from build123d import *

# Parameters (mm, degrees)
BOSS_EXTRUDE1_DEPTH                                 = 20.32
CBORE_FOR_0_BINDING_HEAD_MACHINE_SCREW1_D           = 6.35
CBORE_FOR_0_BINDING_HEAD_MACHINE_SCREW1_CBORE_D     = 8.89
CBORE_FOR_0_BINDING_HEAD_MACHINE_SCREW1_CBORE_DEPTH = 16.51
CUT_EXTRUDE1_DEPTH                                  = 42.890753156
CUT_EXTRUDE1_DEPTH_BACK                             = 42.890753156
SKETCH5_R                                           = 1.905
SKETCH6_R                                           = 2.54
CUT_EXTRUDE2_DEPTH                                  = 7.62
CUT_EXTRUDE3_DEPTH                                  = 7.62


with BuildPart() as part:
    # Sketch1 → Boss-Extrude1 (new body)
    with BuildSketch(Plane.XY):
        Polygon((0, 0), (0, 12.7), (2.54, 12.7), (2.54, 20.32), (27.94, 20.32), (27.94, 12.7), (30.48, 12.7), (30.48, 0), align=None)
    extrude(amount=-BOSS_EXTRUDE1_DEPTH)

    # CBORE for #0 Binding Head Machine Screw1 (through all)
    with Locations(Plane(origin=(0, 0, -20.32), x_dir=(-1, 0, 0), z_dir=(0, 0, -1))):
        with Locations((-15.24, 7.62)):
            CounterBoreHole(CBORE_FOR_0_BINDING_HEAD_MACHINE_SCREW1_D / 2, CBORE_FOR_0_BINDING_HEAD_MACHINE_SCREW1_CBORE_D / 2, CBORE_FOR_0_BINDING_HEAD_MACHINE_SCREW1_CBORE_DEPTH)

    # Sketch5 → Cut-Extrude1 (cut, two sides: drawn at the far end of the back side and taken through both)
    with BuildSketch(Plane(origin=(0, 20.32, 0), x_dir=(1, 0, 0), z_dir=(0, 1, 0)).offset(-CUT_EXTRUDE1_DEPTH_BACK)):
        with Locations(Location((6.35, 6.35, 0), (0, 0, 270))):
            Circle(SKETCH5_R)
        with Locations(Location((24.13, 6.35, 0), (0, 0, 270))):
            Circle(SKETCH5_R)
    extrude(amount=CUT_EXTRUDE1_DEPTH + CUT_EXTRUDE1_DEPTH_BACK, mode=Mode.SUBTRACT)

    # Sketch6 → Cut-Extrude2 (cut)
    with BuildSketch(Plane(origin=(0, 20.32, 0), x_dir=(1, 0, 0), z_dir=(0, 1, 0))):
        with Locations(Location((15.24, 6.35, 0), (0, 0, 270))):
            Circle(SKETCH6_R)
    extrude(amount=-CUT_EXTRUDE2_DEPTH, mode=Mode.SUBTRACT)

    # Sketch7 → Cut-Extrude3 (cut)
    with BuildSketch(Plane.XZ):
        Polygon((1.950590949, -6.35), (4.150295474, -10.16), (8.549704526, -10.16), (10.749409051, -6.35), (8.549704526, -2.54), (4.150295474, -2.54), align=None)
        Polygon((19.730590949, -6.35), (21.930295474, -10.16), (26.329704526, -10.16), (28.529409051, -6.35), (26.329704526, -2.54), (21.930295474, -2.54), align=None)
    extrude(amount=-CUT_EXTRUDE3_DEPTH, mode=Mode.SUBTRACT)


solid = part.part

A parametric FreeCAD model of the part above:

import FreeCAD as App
import Part
import Sketcher
from FreeCAD import Vector
Q = App.Units.Quantity

doc = App.newDocument("Part")
body = doc.addObject("PartDesign::Body", "Body")

sketch1 = body.newObject("Sketcher::SketchObject", "Sketch")
sketch1.AttachmentSupport = (doc.getObject("XY_Plane"), [""])
sketch1.MapMode = "FlatFace"
sketch1.addGeometry([
    Part.LineSegment(Vector(0, 12.7, 0), Vector(0, 0, 0)),
    Part.LineSegment(Vector(0, 0, 0), Vector(30.5, 0, 0)),
    Part.LineSegment(Vector(30.5, 0, 0), Vector(30.5, 12.7, 0)),
    Part.LineSegment(Vector(30.5, 12.7, 0), Vector(27.9, 12.7, 0)),
    Part.LineSegment(Vector(27.9, 12.7, 0), Vector(27.9, 20.3, 0)),
    Part.LineSegment(Vector(27.9, 20.3, 0), Vector(2.5, 20.3, 0)),
    Part.LineSegment(Vector(2.5, 20.3, 0), Vector(2.5, 12.7, 0)),
    Part.LineSegment(Vector(2.5, 12.7, 0), Vector(0, 12.7, 0)),
], False)
sketch1.addConstraint([
    Sketcher.Constraint("Coincident", 0, 2, 1, 1),
    Sketcher.Constraint("Coincident", 1, 2, 2, 1),
    Sketcher.Constraint("Coincident", 2, 2, 3, 1),
    Sketcher.Constraint("Coincident", 3, 2, 4, 1),
    Sketcher.Constraint("Coincident", 4, 2, 5, 1),
    Sketcher.Constraint("Coincident", 5, 2, 6, 1),
    Sketcher.Constraint("Coincident", 6, 2, 7, 1),
    Sketcher.Constraint("Coincident", 7, 2, 0, 1),
    Sketcher.Constraint("Vertical", 0),
    Sketcher.Constraint("Horizontal", 1),
    Sketcher.Constraint("Vertical", 2),
    Sketcher.Constraint("Horizontal", 3),
    Sketcher.Constraint("Vertical", 4),
    Sketcher.Constraint("Horizontal", 5),
    Sketcher.Constraint("Vertical", 6),
    Sketcher.Constraint("Horizontal", 7),
    Sketcher.Constraint("Coincident", 0, 2, -1, 1),
    Sketcher.Constraint("Horizontal", 3, 2, 6, 2),
    Sketcher.Constraint("Equal", 3, 7),
    Sketcher.Constraint("DistanceX", 5, 2, 5, 1, Q("1 in")),
    Sketcher.Constraint("DistanceX", 1, 1, 1, 2, Q("1.2 in")),
    Sketcher.Constraint("DistanceY", 0, 2, 0, 1, Q("0.5 in")),
    Sketcher.Constraint("DistanceY", 4, 1, 4, 2, Q("0.3 in")),
])
pad1 = body.newObject("PartDesign::Pad", "Pad")
pad1.Profile = sketch1
pad1.Length = Q("0.8 in")
pad1.Reversed = True

sketch2 = body.newObject("Sketcher::SketchObject", "Sketch001")
sketch2.AttachmentSupport = (doc.getObject("XY_Plane"), [""])
sketch2.MapMode = "FlatFace"
sketch2.AttachmentOffset = App.Placement(Vector(0, 0, -0.8 * 25.4), App.Rotation())
sketch2.addGeometry(Part.Circle(Vector(15.2, 7.6, 0), Vector(0, 0, 1), 3.2), False)
sketch2.addConstraint([
    Sketcher.Constraint("Diameter", 0, Q("0.25 in")),
    Sketcher.Constraint("DistanceX", -1, 1, 0, 3, Q("0.6 in")),
    Sketcher.Constraint("DistanceY", -1, 1, 0, 3, Q("0.3 in")),
])
doc.recompute()
hole = body.newObject("PartDesign::Hole", "Hole")
hole.Profile = sketch2
hole.ThreadType = "None"
hole.Diameter = Q("0.25 in")
hole.DepthType = "ThroughAll"
hole.HoleCutType = "Counterbore"
hole.HoleCutDiameter = Q("0.35 in")
hole.HoleCutDepth = Q("0.65 in")
hole.Reversed = True

sketch3 = body.newObject("Sketcher::SketchObject", "Sketch002")
sketch3.AttachmentSupport = (doc.getObject("XZ_Plane"), [""])
sketch3.MapMode = "FlatFace"
sketch3.AttachmentOffset = App.Placement(Vector(0, 0, -0.8 * 25.4), App.Rotation())
sketch3.addGeometry([
    Part.Circle(Vector(6.3, -6.3, 0), Vector(0, 0, 1), 1.9),
    Part.Circle(Vector(24.1, -6.3, 0), Vector(0, 0, 1), 1.9),
], False)
sketch3.addConstraint([
    Sketcher.Constraint("Equal", 0, 1),
    Sketcher.Constraint("Horizontal", 0, 3, 1, 3),
    Sketcher.Constraint("Diameter", 0, Q("0.15 in")),
    Sketcher.Constraint("DistanceX", 0, 3, 1, 3, Q("0.7 in")),
    Sketcher.Constraint("DistanceX", -1, 1, 0, 3, Q("0.25 in")),
    Sketcher.Constraint("DistanceY", 0, 3, -1, 1, Q("0.25 in")),
])
pocket1 = body.newObject("PartDesign::Pocket", "Pocket")
pocket1.Profile = sketch3
pocket1.Type = "ThroughAll"
pocket1.Midplane = True

sketch4 = body.newObject("Sketcher::SketchObject", "Sketch003")
sketch4.AttachmentSupport = (doc.getObject("XZ_Plane"), [""])
sketch4.MapMode = "FlatFace"
sketch4.AttachmentOffset = App.Placement(Vector(0, 0, -0.8 * 25.4), App.Rotation())
sketch4.addGeometry(Part.Circle(Vector(15.2, -6.3, 0), Vector(0, 0, 1), 2.5), False)
sketch4.addConstraint([
    Sketcher.Constraint("Diameter", 0, Q("0.2 in")),
    Sketcher.Constraint("DistanceX", -1, 1, 0, 3, Q("0.6 in")),
    Sketcher.Constraint("DistanceY", 0, 3, -1, 1, Q("0.25 in")),
])
pocket2 = body.newObject("PartDesign::Pocket", "Pocket001")
pocket2.Profile = sketch4
pocket2.Length = Q("0.3 in")
pocket2.Reversed = True

sketch5 = body.newObject("Sketcher::SketchObject", "Sketch004")
sketch5.AttachmentSupport = (doc.getObject("XZ_Plane"), [""])
sketch5.MapMode = "FlatFace"
sketch5.addGeometry([
    Part.LineSegment(Vector(2, -6.3, 0), Vector(4.2, -10.2, 0)),
    Part.LineSegment(Vector(4.2, -10.2, 0), Vector(8.5, -10.2, 0)),
    Part.LineSegment(Vector(8.5, -10.2, 0), Vector(10.7, -6.3, 0)),
    Part.LineSegment(Vector(10.7, -6.3, 0), Vector(8.5, -2.5, 0)),
    Part.LineSegment(Vector(8.5, -2.5, 0), Vector(4.2, -2.5, 0)),
    Part.LineSegment(Vector(4.2, -2.5, 0), Vector(2, -6.3, 0)),
    Part.LineSegment(Vector(19.7, -6.3, 0), Vector(21.9, -10.2, 0)),
    Part.LineSegment(Vector(21.9, -10.2, 0), Vector(26.3, -10.2, 0)),
    Part.LineSegment(Vector(26.3, -10.2, 0), Vector(28.5, -6.3, 0)),
    Part.LineSegment(Vector(28.5, -6.3, 0), Vector(26.3, -2.5, 0)),
    Part.LineSegment(Vector(26.3, -2.5, 0), Vector(21.9, -2.5, 0)),
    Part.LineSegment(Vector(21.9, -2.5, 0), Vector(19.7, -6.3, 0)),
], False)
sketch5.addConstraint([
    Sketcher.Constraint("Coincident", 0, 2, 1, 1),
    Sketcher.Constraint("Coincident", 1, 2, 2, 1),
    Sketcher.Constraint("Coincident", 2, 2, 3, 1),
    Sketcher.Constraint("Coincident", 3, 2, 4, 1),
    Sketcher.Constraint("Coincident", 4, 2, 5, 1),
    Sketcher.Constraint("Coincident", 5, 2, 0, 1),
    Sketcher.Constraint("Coincident", 6, 2, 7, 1),
    Sketcher.Constraint("Coincident", 7, 2, 8, 1),
    Sketcher.Constraint("Coincident", 8, 2, 9, 1),
    Sketcher.Constraint("Coincident", 9, 2, 10, 1),
    Sketcher.Constraint("Coincident", 10, 2, 11, 1),
    Sketcher.Constraint("Coincident", 11, 2, 6, 1),
    Sketcher.Constraint("Horizontal", 1),
    Sketcher.Constraint("Horizontal", 4),
    Sketcher.Constraint("Horizontal", 7),
    Sketcher.Constraint("Horizontal", 10),
    Sketcher.Constraint("Parallel", 0, 3),
    Sketcher.Constraint("Parallel", 2, 5),
    Sketcher.Constraint("Parallel", 3, 6),
    Sketcher.Constraint("Parallel", 5, 8),
    Sketcher.Constraint("Parallel", 6, 9),
    Sketcher.Constraint("Parallel", 8, 11),
    Sketcher.Constraint("Horizontal", 2, 2, 5, 2),
    Sketcher.Constraint("Horizontal", 1, 2, 6, 2),
    Sketcher.Constraint("Horizontal", 5, 2, 8, 2),
    Sketcher.Constraint("Horizontal", 4, 2, 9, 2),
    Sketcher.Constraint("Horizontal", 8, 2, 11, 2),
    Sketcher.Constraint("Vertical", 1, 2, 3, 2),
    Sketcher.Constraint("Vertical", 0, 2, 4, 2),
    Sketcher.Constraint("Equal", 4, 7),
    Sketcher.Constraint("Angle", 0, Q("-60 deg")),
    Sketcher.Constraint("DistanceY", 0, 2, -1, 1, Q("0.4 in")),
    Sketcher.Constraint("DistanceY", 3, 2, -1, 1, Q("0.1 in")),
    Sketcher.Constraint("DistanceX", 0, 2, 6, 2, Q("0.7 in")),
    Sketcher.Constraint("DistanceX", 1, 1, 1, 2, Q("4.399409 mm")),
    Sketcher.Constraint("DistanceX", -1, 1, 2, 2, Q("10.749409 mm")),
])
pocket3 = body.newObject("PartDesign::Pocket", "Pocket002")
pocket3.Profile = sketch5
pocket3.Length = Q("0.3 in")

doc.recompute()
